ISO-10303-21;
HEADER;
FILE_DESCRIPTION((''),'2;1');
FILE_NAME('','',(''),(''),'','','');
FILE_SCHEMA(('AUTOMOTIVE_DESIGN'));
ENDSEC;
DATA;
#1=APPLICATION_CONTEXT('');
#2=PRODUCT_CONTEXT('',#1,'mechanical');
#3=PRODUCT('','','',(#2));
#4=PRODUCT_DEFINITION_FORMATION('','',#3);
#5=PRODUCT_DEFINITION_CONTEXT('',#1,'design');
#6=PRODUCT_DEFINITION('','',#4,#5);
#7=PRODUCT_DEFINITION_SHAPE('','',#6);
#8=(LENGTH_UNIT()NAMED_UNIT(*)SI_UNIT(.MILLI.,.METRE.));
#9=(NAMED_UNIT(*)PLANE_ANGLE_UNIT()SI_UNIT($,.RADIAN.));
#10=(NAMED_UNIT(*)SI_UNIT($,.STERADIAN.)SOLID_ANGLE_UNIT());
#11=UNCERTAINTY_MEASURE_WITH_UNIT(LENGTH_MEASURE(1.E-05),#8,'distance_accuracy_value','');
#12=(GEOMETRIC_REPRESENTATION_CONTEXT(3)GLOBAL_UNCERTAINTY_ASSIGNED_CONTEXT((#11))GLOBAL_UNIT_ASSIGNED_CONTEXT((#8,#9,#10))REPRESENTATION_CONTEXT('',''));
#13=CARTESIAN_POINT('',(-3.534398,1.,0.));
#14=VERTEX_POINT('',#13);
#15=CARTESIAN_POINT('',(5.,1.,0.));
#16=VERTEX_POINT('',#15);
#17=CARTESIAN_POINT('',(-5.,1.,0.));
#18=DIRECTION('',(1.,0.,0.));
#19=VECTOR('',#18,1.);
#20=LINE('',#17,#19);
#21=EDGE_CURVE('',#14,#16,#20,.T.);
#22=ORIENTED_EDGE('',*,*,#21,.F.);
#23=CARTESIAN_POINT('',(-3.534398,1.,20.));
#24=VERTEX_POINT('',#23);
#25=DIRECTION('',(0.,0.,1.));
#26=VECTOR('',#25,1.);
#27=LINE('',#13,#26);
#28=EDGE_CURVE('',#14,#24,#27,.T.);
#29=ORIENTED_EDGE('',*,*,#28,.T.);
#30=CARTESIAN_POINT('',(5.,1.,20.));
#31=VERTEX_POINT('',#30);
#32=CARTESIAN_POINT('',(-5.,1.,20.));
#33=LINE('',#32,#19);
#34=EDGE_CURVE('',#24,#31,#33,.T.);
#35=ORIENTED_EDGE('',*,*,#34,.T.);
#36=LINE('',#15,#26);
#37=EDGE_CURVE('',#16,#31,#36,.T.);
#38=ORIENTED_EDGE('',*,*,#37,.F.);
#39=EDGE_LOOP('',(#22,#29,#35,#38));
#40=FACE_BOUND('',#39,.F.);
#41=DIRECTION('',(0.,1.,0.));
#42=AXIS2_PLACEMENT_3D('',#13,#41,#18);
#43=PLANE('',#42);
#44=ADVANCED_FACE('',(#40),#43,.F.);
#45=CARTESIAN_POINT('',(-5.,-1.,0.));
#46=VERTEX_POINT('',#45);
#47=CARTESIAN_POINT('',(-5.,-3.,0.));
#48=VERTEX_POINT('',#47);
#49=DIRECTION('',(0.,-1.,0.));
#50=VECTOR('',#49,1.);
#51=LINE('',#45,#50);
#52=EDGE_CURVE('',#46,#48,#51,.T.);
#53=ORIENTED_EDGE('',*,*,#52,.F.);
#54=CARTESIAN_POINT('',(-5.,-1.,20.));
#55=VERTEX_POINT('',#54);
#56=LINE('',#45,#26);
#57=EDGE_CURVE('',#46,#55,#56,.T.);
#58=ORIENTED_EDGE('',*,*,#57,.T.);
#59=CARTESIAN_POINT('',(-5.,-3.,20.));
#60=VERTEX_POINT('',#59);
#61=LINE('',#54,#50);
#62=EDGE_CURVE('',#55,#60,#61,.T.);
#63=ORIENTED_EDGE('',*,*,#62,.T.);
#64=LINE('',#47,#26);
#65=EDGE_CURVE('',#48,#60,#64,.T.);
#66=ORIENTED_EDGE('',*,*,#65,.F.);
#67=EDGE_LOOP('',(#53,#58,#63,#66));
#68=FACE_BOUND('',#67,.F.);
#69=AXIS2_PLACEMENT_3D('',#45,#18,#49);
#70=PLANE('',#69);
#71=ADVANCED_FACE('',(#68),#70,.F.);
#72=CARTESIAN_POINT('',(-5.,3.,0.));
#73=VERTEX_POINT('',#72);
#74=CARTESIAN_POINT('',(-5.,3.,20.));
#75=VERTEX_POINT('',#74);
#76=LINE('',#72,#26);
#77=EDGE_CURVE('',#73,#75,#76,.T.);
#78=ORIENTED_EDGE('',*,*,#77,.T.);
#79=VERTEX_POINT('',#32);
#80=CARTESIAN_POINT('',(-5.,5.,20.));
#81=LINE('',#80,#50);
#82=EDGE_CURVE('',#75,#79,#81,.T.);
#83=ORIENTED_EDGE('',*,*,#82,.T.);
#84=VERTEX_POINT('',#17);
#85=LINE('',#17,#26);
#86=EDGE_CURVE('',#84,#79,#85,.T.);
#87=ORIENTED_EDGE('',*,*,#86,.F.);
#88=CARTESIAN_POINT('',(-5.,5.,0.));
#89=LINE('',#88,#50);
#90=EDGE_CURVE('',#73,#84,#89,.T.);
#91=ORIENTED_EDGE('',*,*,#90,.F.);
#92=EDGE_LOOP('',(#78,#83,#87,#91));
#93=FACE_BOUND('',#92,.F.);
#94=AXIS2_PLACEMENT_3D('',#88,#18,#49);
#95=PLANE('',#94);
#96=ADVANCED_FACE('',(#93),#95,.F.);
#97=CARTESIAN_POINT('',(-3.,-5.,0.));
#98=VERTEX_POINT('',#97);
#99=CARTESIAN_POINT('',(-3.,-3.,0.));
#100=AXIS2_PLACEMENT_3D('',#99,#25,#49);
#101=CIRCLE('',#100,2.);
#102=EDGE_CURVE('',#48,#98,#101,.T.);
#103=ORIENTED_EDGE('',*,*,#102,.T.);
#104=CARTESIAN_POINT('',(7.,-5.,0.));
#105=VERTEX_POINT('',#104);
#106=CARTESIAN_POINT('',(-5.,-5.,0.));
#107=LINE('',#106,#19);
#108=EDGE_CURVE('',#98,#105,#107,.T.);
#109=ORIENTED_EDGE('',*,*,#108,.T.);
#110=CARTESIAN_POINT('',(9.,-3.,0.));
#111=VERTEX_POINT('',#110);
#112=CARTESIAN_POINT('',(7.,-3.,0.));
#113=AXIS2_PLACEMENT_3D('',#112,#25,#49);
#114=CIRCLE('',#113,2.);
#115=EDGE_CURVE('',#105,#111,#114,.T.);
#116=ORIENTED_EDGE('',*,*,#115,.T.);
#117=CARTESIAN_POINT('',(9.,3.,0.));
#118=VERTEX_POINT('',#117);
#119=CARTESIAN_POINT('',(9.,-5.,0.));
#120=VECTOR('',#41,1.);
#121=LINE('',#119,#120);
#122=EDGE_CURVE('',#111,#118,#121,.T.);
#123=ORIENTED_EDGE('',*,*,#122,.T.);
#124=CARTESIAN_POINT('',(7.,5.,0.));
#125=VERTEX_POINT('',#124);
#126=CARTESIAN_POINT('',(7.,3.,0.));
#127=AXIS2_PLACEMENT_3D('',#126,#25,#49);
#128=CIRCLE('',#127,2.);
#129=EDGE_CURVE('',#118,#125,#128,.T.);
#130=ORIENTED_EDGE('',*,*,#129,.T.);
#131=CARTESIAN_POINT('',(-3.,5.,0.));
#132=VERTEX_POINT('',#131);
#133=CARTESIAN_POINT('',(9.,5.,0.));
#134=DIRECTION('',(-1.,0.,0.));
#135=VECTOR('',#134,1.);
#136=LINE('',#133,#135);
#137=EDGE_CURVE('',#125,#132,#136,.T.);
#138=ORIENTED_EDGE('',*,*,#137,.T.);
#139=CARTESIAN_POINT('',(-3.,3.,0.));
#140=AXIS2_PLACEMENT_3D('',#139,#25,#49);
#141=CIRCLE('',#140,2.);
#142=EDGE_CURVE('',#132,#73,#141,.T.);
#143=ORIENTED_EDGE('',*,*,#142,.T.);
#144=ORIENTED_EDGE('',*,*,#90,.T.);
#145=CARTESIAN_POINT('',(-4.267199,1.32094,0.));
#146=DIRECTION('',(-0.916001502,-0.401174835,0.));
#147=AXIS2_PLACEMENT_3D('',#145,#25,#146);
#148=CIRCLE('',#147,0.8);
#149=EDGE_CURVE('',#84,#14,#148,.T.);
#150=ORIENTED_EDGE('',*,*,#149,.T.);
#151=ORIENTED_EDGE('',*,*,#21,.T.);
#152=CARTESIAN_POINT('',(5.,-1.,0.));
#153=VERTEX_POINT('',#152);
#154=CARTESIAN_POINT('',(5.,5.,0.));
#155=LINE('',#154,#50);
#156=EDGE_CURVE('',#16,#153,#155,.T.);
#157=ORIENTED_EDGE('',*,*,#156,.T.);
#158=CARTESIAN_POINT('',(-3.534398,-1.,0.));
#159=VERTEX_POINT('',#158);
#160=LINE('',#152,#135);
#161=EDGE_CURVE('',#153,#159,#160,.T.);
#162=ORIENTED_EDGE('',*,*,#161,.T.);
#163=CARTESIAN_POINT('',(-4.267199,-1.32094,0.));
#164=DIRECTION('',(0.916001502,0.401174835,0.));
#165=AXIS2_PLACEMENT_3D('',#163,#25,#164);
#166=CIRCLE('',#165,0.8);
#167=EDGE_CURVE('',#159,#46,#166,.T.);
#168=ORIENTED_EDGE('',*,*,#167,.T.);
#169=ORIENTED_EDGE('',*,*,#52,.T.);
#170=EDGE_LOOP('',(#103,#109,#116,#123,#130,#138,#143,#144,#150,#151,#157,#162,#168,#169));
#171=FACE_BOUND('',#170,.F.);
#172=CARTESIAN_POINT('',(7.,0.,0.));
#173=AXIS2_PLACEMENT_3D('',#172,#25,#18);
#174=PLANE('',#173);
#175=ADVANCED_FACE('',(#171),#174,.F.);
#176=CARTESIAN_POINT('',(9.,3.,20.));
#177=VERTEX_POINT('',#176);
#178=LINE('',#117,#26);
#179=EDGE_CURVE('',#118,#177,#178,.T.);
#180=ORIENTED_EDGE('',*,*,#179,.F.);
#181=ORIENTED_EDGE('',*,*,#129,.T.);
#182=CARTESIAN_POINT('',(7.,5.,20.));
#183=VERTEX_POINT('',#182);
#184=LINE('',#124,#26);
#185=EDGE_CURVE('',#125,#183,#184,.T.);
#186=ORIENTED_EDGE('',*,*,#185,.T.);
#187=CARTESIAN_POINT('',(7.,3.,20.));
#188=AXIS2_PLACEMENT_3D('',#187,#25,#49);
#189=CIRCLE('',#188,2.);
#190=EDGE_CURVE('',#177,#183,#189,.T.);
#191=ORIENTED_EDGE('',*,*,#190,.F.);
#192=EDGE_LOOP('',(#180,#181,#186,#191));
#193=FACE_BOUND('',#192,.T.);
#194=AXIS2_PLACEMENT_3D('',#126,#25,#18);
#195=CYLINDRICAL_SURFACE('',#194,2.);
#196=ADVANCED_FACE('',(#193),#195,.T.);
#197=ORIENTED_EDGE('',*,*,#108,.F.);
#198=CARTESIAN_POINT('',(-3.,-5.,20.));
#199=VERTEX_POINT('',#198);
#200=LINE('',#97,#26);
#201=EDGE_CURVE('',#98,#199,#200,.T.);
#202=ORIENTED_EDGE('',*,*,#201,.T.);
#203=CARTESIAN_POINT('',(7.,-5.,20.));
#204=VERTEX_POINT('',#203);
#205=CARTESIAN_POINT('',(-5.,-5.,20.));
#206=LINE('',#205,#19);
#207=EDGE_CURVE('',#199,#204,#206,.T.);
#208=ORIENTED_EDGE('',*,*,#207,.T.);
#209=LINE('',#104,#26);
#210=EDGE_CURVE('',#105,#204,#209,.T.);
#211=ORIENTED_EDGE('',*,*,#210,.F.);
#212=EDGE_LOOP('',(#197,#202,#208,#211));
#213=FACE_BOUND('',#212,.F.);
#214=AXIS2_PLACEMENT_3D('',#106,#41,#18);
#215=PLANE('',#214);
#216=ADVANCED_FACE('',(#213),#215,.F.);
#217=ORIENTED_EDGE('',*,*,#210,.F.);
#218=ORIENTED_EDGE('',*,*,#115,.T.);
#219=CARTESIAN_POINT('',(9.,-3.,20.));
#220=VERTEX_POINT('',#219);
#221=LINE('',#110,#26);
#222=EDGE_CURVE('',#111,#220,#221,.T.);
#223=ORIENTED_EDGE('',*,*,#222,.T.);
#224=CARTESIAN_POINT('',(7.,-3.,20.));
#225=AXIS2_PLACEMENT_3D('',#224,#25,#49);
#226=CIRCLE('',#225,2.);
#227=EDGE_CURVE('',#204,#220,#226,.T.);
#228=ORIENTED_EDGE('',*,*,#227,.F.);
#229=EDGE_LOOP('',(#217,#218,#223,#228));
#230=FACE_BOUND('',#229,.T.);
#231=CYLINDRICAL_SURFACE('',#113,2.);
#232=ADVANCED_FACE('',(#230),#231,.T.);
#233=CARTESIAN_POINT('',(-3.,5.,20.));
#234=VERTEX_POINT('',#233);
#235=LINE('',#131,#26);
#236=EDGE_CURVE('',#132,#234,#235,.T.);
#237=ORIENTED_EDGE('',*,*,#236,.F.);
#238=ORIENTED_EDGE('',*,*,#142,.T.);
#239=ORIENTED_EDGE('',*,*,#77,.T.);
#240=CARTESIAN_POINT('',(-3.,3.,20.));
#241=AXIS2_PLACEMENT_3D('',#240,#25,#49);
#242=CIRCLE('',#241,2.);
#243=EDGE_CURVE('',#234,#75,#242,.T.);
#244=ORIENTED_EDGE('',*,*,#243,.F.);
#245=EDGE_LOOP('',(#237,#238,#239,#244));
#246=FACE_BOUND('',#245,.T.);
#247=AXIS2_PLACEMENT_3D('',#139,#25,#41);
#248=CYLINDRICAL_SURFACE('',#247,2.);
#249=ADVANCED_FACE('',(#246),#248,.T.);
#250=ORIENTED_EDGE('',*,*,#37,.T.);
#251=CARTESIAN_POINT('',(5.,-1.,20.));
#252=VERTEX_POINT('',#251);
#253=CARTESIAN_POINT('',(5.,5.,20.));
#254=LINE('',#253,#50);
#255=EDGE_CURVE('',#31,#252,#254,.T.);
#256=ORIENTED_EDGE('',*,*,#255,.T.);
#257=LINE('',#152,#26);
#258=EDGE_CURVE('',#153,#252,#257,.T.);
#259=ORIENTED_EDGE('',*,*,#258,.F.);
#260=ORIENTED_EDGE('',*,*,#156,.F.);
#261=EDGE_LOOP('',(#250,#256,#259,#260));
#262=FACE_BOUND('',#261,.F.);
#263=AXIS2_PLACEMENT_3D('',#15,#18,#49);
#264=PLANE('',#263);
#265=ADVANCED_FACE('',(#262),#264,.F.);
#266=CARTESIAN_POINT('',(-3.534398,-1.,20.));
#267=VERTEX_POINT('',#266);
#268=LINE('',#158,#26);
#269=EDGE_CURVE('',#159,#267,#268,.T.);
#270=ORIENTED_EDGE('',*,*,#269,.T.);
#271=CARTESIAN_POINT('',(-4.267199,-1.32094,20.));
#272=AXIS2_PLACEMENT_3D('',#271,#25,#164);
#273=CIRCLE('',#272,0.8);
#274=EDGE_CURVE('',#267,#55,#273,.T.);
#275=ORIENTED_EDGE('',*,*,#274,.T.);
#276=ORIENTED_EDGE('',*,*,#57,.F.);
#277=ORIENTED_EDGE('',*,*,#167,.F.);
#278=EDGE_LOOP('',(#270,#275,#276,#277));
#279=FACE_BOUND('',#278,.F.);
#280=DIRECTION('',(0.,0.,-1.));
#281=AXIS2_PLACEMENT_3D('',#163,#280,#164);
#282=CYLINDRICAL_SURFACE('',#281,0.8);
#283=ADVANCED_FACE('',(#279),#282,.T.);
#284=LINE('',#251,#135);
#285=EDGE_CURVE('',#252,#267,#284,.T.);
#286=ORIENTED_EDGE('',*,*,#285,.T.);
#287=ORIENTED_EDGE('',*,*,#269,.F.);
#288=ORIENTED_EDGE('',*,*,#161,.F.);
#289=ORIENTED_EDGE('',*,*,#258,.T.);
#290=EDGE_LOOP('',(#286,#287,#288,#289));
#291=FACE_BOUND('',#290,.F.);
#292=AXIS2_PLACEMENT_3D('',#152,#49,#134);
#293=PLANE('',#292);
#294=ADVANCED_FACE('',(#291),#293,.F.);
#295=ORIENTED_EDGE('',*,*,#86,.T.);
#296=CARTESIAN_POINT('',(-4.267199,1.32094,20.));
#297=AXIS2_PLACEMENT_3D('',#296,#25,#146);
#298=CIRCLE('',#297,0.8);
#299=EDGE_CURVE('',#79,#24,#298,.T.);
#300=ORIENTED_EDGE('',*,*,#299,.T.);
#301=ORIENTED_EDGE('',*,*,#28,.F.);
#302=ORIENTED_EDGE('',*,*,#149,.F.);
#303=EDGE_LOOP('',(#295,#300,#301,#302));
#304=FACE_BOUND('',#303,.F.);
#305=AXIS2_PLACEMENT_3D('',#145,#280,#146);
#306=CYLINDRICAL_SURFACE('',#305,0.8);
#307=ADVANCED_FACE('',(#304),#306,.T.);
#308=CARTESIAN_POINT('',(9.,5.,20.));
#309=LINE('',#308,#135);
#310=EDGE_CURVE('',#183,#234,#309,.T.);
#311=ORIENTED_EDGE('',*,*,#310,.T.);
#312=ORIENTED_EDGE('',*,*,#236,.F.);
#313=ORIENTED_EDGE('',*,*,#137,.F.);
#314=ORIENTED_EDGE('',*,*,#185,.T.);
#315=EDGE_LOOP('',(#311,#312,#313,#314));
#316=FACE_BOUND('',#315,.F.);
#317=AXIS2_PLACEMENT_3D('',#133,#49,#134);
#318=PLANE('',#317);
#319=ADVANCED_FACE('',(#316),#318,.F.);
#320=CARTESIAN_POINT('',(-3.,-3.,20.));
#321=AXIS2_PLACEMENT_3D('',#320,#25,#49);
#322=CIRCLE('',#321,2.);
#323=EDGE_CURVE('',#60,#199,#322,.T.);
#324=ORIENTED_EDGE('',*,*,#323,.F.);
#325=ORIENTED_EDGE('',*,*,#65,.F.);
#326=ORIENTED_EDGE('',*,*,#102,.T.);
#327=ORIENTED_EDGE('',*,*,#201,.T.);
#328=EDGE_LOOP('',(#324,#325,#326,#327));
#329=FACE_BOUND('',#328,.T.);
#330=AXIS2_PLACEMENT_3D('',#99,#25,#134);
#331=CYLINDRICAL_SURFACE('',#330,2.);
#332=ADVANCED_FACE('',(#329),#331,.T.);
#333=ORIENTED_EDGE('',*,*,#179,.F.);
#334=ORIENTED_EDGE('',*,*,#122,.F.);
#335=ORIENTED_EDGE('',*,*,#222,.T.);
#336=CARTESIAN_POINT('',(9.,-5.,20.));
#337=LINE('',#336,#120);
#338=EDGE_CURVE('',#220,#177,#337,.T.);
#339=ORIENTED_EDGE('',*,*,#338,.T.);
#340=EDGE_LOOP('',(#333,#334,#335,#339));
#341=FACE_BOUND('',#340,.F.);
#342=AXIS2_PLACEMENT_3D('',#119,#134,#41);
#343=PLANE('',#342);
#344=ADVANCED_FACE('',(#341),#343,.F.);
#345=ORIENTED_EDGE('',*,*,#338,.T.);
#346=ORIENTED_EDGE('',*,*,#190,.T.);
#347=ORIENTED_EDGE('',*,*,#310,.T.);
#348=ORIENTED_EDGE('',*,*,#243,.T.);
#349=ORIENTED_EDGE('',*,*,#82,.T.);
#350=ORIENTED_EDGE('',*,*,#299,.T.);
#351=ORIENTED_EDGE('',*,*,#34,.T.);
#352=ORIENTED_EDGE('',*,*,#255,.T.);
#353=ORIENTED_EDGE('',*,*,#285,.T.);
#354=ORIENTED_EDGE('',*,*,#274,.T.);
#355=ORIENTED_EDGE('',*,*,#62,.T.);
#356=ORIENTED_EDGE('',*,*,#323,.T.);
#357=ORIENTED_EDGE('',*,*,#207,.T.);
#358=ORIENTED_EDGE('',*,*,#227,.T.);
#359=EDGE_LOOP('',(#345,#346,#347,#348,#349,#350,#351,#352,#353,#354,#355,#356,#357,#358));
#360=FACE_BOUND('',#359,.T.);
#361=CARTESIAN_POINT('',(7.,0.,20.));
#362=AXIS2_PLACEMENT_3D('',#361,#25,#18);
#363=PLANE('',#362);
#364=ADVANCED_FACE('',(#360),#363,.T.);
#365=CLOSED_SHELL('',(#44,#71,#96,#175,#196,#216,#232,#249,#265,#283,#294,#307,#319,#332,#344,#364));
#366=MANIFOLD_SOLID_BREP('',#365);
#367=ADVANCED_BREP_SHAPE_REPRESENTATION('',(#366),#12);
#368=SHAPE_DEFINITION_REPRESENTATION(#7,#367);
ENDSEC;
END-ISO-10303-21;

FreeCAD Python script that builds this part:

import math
import FreeCAD as App
import Part
import Sketcher
from FreeCAD import Vector
Q = App.Units.Quantity


def edges_at(feature, points):
    """Names of the edges that pass closest to the given points."""
    edges = feature.Shape.Edges
    near = lambda p: min(range(len(edges)), key=lambda i: edges[i].distToShape(Part.Vertex(*p))[0])
    return sorted({f"Edge{near(p) + 1}" for p in points})

doc = App.newDocument("Part")
body = doc.addObject("PartDesign::Body", "Body")

sketch1 = body.newObject("Sketcher::SketchObject", "Sketch")
sketch1.AttachmentSupport = (doc.getObject("XY_Plane"), [""])
sketch1.MapMode = "FlatFace"
sketch1.addGeometry([
    Part.LineSegment(Vector(5, 1, 0), Vector(5, -1, 0)),
    Part.LineSegment(Vector(5, -1, 0), Vector(-3.5, -1, 0)),
    Part.ArcOfCircle(Part.Circle(Vector(-4.3, -1.3, 0), Vector(0, 0, 1), 0.8), math.radians(24), math.radians(156)),
    Part.LineSegment(Vector(-5, -1, 0), Vector(-5, -5, 0)),
    Part.LineSegment(Vector(-5, -5, 0), Vector(9, -5, 0)),
    Part.LineSegment(Vector(9, -5, 0), Vector(9, 5, 0)),
    Part.LineSegment(Vector(9, 5, 0), Vector(-5, 5, 0)),
    Part.LineSegment(Vector(-5, 5, 0), Vector(-5, 1, 0)),
    Part.ArcOfCircle(Part.Circle(Vector(-4.3, 1.3, 0), Vector(0, 0, 1), 0.8), math.radians(-156), math.radians(-24)),
    Part.LineSegment(Vector(-3.5, 1, 0), Vector(5, 1, 0)),
], False)
sketch1.addConstraint([
    Sketcher.Constraint("Coincident", 0, 2, 1, 1),
    Sketcher.Constraint("Coincident", 1, 2, 2, 1),
    Sketcher.Constraint("Coincident", 2, 2, 3, 1),
    Sketcher.Constraint("Coincident", 3, 2, 4, 1),
    Sketcher.Constraint("Coincident", 4, 2, 5, 1),
    Sketcher.Constraint("Coincident", 5, 2, 6, 1),
    Sketcher.Constraint("Coincident", 6, 2, 7, 1),
    Sketcher.Constraint("Coincident", 7, 2, 8, 1),
    Sketcher.Constraint("Coincident", 8, 2, 9, 1),
    Sketcher.Constraint("Coincident", 9, 2, 0, 1),
    Sketcher.Constraint("Vertical", 0),
    Sketcher.Constraint("Horizontal", 1),
    Sketcher.Constraint("Vertical", 3),
    Sketcher.Constraint("Horizontal", 4),
    Sketcher.Constraint("Vertical", 5),
    Sketcher.Constraint("Horizontal", 6),
    Sketcher.Constraint("Vertical", 7),
    Sketcher.Constraint("Horizontal", 9),
    Sketcher.Constraint("Equal", 2, 8),
    Sketcher.Constraint("Symmetric", 0, 2, 7, 2, -1, 1),
    Sketcher.Constraint("Symmetric", 2, 2, 9, 2, -1, 1),
    Sketcher.Constraint("Symmetric", 2, 3, 8, 3, -1),
    Sketcher.Constraint("Equal", 3, 7),
    Sketcher.Constraint("Radius", 2, Q("0.8 mm")),
    Sketcher.Constraint("DistanceX", 4, 1, 4, 2, Q("14 mm")),
    Sketcher.Constraint("DistanceY", 0, 2, 0, 1, Q("2 mm")),
    Sketcher.Constraint("DistanceY", 3, 2, 3, 1, Q("4 mm")),
    Sketcher.Constraint("DistanceX", -1, 1, 0, 2, Q("5 mm")),
    Sketcher.Constraint("DistanceX", 2, 3, -1, 1, Q("4.267199 mm")),
])
pad1 = body.newObject("PartDesign::Pad", "Pad")
pad1.Profile = sketch1
pad1.Length = 20
doc.recompute()

fillet = body.newObject("PartDesign::Fillet", "Fillet")
fillet.Base = (pad1, edges_at(pad1, [
    (9, 5, 10),
    (9, -5, 10),
    (-5, -5, 10),
    (-5, 5, 10),
]))
fillet.Radius = 2

doc.recompute()
